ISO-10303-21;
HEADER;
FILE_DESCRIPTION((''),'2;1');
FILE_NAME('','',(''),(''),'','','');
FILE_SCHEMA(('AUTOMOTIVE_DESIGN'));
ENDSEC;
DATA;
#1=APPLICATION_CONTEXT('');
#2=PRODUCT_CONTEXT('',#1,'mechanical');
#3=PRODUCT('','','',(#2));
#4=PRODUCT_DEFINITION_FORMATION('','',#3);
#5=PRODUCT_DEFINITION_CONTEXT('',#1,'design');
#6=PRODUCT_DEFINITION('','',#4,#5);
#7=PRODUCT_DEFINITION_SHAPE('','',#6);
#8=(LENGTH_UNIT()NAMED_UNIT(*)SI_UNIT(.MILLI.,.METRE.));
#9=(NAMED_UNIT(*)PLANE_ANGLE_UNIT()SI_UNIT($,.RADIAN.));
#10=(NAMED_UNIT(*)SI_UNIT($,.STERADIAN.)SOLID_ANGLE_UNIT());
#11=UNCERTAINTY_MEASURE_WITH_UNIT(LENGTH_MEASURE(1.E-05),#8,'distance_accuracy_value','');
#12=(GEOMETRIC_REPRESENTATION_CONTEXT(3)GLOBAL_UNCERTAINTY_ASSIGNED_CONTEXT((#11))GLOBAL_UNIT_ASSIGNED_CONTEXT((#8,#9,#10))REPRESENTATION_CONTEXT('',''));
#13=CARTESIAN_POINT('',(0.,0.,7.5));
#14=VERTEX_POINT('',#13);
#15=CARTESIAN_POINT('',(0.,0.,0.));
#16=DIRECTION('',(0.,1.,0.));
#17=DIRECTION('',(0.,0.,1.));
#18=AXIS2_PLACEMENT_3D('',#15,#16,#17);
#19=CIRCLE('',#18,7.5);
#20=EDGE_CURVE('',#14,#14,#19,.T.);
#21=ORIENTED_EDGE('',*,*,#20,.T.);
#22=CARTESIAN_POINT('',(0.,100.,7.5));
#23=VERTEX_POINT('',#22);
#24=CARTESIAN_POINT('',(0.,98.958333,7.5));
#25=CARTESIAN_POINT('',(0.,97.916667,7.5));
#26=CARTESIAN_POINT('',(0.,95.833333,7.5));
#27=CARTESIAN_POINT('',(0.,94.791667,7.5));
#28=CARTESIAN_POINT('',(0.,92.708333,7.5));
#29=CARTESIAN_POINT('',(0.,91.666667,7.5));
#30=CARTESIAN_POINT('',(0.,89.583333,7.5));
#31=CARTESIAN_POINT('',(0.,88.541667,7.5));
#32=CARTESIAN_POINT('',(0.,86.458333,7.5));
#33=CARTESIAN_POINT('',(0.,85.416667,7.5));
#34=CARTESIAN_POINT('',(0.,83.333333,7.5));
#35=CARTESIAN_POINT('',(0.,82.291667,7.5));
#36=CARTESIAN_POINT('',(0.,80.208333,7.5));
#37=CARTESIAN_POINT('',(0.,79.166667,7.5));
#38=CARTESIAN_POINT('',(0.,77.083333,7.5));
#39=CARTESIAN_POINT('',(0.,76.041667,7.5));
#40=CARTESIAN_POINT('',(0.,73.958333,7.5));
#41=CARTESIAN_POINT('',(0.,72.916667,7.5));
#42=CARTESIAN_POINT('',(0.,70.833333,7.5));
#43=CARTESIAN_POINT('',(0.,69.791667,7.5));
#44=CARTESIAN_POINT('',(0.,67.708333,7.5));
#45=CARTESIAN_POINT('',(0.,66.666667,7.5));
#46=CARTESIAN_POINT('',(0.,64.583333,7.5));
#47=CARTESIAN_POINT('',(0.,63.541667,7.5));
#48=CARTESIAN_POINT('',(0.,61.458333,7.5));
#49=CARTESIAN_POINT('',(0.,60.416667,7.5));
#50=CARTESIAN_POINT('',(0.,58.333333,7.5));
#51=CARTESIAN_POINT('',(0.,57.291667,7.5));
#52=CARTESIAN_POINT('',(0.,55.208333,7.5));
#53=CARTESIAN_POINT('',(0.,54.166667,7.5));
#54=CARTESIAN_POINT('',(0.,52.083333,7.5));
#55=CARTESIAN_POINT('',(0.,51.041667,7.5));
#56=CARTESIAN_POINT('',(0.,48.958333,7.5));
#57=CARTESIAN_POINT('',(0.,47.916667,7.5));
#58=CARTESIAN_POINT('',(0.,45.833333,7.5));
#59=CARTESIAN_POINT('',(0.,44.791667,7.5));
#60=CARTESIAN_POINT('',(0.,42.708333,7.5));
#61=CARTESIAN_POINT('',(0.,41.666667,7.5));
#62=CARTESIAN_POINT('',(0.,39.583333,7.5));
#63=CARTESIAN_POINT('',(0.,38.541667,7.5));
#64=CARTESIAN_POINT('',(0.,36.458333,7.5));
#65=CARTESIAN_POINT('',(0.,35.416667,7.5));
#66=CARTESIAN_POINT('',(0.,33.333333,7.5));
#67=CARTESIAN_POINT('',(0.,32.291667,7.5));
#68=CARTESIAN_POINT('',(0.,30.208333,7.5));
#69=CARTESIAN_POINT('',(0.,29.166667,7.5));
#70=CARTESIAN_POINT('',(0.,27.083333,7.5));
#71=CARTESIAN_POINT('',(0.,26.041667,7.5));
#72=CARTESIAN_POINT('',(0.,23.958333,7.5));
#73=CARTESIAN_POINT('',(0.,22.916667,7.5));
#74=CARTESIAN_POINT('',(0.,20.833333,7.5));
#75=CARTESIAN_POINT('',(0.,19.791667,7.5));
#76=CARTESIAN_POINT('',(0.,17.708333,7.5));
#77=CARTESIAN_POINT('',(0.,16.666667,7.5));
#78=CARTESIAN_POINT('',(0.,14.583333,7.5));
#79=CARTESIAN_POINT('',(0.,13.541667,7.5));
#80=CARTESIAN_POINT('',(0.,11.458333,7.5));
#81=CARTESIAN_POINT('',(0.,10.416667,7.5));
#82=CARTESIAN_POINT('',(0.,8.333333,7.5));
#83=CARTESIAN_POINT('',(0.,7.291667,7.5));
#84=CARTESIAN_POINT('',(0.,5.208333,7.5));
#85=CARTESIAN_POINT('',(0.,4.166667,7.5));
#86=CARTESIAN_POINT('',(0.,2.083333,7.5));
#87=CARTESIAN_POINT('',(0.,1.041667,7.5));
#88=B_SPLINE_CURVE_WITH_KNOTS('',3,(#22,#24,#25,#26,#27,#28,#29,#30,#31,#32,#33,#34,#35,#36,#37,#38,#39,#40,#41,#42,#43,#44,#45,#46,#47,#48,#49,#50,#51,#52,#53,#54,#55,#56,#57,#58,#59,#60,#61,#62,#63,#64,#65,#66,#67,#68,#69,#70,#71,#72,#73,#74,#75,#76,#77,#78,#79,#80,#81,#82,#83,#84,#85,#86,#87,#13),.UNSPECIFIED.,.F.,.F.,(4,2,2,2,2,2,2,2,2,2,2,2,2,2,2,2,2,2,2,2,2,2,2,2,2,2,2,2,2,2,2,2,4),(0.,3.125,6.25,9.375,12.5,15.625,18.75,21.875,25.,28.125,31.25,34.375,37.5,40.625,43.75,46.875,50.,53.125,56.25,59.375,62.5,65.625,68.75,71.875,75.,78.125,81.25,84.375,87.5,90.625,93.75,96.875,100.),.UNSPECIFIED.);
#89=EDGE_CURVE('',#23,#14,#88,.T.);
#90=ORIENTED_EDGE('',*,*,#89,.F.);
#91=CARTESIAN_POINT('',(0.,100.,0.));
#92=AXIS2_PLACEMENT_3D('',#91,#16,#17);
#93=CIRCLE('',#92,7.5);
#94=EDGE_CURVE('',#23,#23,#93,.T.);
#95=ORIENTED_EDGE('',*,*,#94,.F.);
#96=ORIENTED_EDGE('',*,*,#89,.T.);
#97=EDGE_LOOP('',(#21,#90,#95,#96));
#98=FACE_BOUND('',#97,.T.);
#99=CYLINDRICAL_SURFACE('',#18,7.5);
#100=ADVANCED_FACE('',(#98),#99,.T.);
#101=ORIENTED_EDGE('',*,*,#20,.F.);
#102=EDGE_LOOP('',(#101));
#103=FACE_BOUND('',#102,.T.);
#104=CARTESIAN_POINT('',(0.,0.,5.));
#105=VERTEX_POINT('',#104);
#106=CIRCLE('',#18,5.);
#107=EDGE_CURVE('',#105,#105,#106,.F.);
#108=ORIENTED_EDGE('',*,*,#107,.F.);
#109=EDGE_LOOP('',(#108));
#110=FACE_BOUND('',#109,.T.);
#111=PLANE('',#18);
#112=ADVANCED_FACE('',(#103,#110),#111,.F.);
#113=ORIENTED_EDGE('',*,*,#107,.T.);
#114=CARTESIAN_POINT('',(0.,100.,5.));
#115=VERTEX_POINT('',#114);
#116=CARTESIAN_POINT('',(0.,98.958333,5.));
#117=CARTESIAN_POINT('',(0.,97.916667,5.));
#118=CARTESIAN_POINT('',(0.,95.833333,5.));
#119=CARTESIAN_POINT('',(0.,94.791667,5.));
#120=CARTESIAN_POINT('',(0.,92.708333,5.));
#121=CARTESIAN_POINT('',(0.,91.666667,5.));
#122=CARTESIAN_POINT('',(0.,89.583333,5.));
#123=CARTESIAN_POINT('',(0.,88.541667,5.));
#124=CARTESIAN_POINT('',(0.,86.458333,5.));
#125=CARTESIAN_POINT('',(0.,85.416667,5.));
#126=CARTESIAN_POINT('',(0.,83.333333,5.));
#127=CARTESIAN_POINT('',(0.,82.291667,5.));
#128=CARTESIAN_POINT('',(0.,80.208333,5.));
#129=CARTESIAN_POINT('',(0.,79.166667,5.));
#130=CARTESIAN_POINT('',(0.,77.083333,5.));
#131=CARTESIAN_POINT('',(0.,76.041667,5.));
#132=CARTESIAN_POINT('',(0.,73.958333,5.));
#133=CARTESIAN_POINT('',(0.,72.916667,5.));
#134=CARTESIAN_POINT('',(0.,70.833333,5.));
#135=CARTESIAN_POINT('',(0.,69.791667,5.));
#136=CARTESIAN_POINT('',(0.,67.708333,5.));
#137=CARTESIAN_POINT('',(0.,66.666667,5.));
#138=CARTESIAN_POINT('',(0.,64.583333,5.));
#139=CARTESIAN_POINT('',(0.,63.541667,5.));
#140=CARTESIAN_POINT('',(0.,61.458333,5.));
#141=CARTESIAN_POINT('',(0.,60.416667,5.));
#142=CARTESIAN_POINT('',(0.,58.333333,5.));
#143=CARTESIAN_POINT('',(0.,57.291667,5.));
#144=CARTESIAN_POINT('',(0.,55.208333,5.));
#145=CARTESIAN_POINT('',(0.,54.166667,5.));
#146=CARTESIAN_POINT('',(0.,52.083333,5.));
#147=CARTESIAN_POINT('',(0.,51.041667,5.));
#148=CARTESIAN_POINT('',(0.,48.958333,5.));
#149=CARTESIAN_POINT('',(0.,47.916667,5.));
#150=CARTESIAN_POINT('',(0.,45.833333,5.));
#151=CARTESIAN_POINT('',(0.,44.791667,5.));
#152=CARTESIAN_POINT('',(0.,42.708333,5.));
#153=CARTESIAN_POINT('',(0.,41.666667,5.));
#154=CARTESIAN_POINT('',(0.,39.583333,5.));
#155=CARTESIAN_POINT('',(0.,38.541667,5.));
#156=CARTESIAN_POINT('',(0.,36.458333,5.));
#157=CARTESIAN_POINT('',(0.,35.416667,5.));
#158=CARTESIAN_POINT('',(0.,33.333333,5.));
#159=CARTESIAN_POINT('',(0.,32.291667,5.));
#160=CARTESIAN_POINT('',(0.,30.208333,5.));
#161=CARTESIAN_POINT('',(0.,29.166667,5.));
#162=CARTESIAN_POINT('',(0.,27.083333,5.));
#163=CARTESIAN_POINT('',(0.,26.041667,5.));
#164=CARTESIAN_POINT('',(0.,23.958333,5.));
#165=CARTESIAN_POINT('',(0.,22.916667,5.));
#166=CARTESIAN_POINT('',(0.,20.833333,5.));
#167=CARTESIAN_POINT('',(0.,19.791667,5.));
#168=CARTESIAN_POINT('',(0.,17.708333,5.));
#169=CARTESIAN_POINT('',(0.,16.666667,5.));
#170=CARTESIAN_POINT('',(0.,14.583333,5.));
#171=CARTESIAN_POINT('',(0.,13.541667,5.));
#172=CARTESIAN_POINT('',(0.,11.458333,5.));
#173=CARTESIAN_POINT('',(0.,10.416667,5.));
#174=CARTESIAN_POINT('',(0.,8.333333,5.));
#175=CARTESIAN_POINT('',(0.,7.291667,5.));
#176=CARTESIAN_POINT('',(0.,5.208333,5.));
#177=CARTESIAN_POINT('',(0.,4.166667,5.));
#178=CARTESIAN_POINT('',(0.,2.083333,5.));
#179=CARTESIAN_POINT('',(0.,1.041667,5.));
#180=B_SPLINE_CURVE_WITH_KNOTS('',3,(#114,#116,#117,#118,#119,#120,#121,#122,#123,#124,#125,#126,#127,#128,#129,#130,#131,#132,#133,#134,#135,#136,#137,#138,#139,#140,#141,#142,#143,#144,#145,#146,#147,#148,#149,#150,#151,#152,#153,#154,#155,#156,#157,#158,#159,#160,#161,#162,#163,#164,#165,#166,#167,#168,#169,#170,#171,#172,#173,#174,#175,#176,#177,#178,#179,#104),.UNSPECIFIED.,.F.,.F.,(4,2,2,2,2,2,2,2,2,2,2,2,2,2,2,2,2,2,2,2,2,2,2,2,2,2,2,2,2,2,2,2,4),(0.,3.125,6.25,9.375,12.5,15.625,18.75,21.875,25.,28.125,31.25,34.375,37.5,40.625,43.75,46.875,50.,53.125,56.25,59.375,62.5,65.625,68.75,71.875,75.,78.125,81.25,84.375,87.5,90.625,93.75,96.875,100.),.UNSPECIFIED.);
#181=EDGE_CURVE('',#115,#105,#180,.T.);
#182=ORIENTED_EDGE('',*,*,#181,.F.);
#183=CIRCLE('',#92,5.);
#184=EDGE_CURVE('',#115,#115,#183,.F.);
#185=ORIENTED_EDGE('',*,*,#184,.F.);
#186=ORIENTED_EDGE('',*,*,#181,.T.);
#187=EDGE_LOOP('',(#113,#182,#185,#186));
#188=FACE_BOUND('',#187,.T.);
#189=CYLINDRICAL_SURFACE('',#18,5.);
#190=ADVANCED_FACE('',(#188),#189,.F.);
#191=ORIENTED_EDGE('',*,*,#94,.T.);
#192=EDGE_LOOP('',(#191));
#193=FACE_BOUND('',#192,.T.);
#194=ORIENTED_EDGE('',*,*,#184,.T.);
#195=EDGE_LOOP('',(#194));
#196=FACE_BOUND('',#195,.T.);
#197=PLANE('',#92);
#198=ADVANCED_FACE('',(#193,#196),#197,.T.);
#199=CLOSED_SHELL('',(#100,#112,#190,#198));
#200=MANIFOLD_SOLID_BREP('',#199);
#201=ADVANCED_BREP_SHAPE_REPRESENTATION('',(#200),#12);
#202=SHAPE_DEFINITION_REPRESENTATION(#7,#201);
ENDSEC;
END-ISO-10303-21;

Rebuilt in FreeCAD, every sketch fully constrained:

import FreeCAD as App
import Part
import Sketcher
Q = App.Units.Quantity

doc = App.newDocument("Part")
body = doc.addObject("PartDesign::Body", "Body")

sketch1 = body.newObject("Sketcher::SketchObject", "Sketch")
sketch1.AttachmentSupport = (doc.getObject("XZ_Plane"), [""])
sketch1.MapMode = "FlatFace"
sketch1.addGeometry([
    Part.Circle(App.Vector(0, 0, 0), App.Vector(0, 0, 1), 7.5),
    Part.Circle(App.Vector(0, 0, 0), App.Vector(0, 0, 1), 5),
], False)
sketch1.addConstraint([
    Sketcher.Constraint("Coincident", 0, 3, -1, 1),
    Sketcher.Constraint("Coincident", 1, 3, -1, 1),
    Sketcher.Constraint("Diameter", 0, Q("15 mm")),
    Sketcher.Constraint("Diameter", 1, Q("10 mm")),
])

sketch2 = body.newObject("Sketcher::SketchObject", "Sketch001")
sketch2.AttachmentSupport = (doc.getObject("XY_Plane"), [""])
sketch2.MapMode = "FlatFace"
sketch2.addGeometry(Part.BSplineCurve([App.Vector(0, 0, 0), App.Vector(0, 50, 0), App.Vector(0, 100, 0)], [3, 3], [0, 1], False, 2, [1, 1, 1], False), False)
sketch2.addConstraint(Sketcher.Constraint("Block", 0))
doc.recompute()

additivepipe = body.newObject("PartDesign::AdditivePipe", "AdditivePipe")
additivepipe.Profile = sketch1
additivepipe.Spine = (sketch2, ["Edge1"])

doc.recompute()
